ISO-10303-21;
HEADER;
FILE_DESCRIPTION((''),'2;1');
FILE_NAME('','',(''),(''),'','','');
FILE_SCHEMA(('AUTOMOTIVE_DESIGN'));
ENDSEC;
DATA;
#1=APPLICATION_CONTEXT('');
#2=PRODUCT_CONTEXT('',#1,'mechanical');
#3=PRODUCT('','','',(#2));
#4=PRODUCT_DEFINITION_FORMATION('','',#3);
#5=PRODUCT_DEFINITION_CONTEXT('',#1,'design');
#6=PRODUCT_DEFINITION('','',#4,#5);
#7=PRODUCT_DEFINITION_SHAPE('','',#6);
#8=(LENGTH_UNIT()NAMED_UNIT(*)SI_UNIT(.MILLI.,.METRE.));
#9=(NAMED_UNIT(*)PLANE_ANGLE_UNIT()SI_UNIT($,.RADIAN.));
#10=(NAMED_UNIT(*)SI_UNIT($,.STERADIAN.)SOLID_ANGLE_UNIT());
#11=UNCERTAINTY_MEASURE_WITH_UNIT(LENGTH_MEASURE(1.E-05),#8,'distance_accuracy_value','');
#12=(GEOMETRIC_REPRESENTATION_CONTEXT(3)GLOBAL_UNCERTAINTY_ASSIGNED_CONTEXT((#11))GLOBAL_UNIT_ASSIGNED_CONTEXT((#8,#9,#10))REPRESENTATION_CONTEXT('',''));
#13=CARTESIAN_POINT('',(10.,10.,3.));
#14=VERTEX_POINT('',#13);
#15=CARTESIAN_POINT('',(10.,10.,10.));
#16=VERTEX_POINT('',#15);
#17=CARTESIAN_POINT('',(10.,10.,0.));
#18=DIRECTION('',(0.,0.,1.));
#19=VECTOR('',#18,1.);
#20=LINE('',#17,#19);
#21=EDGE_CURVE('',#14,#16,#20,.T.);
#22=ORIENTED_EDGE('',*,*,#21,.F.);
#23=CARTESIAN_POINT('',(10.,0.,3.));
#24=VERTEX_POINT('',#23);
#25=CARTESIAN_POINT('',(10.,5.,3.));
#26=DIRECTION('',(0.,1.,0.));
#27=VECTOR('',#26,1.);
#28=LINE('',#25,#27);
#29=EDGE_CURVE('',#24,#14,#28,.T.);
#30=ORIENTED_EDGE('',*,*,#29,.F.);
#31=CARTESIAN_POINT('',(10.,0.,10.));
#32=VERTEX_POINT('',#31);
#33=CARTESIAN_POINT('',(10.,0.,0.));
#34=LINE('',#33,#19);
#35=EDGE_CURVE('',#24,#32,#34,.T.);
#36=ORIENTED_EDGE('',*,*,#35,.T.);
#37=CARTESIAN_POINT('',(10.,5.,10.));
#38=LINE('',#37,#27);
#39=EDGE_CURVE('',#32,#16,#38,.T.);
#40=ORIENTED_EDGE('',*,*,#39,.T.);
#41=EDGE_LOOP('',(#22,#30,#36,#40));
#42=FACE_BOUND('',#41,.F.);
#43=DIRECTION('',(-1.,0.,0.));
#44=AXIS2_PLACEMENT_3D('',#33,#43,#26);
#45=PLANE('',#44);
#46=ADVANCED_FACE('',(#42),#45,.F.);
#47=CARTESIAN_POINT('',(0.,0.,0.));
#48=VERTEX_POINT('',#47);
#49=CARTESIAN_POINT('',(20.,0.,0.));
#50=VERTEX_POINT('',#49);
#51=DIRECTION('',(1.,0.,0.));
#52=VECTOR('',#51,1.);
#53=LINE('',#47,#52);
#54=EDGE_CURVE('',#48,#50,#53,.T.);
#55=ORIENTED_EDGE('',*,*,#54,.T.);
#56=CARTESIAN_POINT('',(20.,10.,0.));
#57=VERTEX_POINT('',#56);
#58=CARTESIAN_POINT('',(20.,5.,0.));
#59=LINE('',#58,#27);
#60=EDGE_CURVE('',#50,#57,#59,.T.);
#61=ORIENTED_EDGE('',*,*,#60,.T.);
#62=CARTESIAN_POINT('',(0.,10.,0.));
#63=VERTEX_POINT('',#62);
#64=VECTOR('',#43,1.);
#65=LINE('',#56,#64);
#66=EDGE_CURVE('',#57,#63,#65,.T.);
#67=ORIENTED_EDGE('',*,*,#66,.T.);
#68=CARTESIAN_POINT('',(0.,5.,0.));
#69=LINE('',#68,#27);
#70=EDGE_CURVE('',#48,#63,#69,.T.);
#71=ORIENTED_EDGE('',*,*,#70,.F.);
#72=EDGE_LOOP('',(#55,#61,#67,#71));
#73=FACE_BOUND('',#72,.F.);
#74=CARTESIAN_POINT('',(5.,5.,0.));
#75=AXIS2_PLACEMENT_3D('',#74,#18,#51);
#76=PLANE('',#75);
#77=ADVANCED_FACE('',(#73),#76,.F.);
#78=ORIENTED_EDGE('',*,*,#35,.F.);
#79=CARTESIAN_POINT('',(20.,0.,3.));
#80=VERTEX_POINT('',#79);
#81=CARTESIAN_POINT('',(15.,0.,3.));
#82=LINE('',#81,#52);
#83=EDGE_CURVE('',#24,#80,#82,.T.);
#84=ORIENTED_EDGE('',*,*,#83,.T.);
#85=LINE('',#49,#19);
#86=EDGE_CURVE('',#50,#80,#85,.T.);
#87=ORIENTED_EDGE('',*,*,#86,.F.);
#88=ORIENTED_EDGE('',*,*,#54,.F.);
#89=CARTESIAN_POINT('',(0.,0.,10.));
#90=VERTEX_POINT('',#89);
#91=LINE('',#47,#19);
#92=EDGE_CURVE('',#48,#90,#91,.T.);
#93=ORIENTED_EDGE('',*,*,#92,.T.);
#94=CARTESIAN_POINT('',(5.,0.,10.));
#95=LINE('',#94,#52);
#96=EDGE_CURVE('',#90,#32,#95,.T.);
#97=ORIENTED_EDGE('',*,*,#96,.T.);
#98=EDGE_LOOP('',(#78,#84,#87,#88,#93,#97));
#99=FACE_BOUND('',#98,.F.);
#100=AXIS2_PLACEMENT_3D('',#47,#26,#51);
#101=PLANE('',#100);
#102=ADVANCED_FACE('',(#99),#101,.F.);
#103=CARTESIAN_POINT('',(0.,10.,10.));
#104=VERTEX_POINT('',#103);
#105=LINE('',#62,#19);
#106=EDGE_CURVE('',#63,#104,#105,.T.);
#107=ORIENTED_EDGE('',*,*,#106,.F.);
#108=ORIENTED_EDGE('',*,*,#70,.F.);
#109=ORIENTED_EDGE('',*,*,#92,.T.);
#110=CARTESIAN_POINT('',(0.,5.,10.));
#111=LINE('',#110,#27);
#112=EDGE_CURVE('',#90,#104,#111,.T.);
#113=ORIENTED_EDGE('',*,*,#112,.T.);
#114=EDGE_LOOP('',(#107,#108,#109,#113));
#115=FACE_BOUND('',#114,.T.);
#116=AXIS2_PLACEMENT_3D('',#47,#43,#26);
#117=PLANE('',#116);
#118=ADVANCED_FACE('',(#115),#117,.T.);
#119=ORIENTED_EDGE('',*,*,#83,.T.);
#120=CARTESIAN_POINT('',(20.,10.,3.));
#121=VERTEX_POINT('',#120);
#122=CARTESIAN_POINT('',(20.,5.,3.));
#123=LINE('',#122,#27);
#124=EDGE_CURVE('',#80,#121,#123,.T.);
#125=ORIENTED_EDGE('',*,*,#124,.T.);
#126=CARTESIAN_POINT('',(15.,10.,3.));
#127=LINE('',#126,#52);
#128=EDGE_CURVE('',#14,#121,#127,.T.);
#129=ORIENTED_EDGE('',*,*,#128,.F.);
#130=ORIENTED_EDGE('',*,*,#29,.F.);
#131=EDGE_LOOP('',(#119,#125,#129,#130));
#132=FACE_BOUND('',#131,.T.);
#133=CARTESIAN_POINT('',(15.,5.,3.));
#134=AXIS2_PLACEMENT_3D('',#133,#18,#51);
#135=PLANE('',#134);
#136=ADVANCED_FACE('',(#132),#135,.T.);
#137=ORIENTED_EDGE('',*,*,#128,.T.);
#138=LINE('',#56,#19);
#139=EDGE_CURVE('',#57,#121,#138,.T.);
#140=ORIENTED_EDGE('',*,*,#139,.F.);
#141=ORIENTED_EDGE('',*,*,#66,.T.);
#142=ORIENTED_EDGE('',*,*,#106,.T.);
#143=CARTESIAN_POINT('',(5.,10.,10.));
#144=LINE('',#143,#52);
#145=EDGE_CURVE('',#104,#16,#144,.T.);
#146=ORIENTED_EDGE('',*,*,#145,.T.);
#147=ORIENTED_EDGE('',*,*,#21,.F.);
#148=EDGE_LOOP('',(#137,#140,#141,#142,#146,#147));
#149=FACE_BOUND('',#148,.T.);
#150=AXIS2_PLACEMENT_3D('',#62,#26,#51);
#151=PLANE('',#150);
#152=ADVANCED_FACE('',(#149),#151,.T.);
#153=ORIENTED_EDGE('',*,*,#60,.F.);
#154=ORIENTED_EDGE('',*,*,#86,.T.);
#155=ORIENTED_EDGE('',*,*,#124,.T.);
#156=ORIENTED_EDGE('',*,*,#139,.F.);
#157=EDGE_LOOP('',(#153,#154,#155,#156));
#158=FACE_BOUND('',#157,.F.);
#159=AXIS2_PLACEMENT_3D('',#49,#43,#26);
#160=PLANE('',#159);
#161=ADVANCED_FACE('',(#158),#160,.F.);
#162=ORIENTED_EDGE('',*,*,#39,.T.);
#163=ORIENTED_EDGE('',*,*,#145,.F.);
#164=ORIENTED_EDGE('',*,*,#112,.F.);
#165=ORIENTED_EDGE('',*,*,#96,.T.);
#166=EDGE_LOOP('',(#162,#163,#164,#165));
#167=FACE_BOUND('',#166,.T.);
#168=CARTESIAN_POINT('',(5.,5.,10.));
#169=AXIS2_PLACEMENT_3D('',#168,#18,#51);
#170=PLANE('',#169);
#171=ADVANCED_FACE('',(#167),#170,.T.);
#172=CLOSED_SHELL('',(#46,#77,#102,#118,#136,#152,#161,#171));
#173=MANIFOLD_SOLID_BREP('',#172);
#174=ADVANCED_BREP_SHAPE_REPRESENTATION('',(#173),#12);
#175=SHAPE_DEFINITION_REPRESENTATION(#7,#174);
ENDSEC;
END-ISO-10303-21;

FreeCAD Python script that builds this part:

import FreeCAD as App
import Part
import Sketcher

V = App.Vector
Q = App.Units.Quantity

doc = App.newDocument("Part")
body = doc.addObject("PartDesign::Body", "Body")

# Sketch on XY plane
sketch1 = doc.addObject("Sketcher::SketchObject", "Sketch")
body.addObject(sketch1)
sketch1.AttachmentSupport = (doc.XY_Plane, [""])
sketch1.MapMode = "FlatFace"
sketch1.addGeometry([
    Part.LineSegment(V(0, 10, 0), V(0, 0, 0)),
    Part.LineSegment(V(0, 0, 0), V(10, 0, 0)),
    Part.LineSegment(V(10, 0, 0), V(10, 10, 0)),
    Part.LineSegment(V(10, 10, 0), V(0, 10, 0)),
], False)
sketch1.addConstraint([
    Sketcher.Constraint("Coincident", 0, 2, 1, 1),
    Sketcher.Constraint("Coincident", 1, 2, 2, 1),
    Sketcher.Constraint("Coincident", 2, 2, 3, 1),
    Sketcher.Constraint("Coincident", 3, 2, 0, 1),
    Sketcher.Constraint("Vertical", 0),
    Sketcher.Constraint("Horizontal", 1),
    Sketcher.Constraint("Vertical", 2),
    Sketcher.Constraint("Horizontal", 3),
    Sketcher.Constraint("Coincident", 0, 2, -1, 1),
    Sketcher.Constraint("Equal", 3, 0),
    Sketcher.Constraint("DistanceX", 1, 1, 1, 2, Q("10 mm")),
])
pad1 = doc.addObject("PartDesign::Pad", "Pad")
body.addObject(pad1)
pad1.Profile = sketch1
pad1.Length = 10
body2 = doc.addObject("PartDesign::Body", "Body001")

# Sketch on XY plane
sketch2 = doc.addObject("Sketcher::SketchObject", "Sketch001")
body2.addObject(sketch2)
sketch2.AttachmentSupport = (doc.getObject("XY_Plane001"), [""])
sketch2.MapMode = "FlatFace"
sketch2.addGeometry([
    Part.LineSegment(V(10, 10, 0), V(10, 0, 0)),
    Part.LineSegment(V(10, 0, 0), V(20, 0, 0)),
    Part.LineSegment(V(20, 0, 0), V(20, 10, 0)),
    Part.LineSegment(V(20, 10, 0), V(10, 10, 0)),
], False)
sketch2.addConstraint([
    Sketcher.Constraint("Coincident", 0, 2, 1, 1),
    Sketcher.Constraint("Coincident", 1, 2, 2, 1),
    Sketcher.Constraint("Coincident", 2, 2, 3, 1),
    Sketcher.Constraint("Coincident", 3, 2, 0, 1),
    Sketcher.Constraint("Vertical", 0),
    Sketcher.Constraint("Horizontal", 1),
    Sketcher.Constraint("Vertical", 2),
    Sketcher.Constraint("Horizontal", 3),
    Sketcher.Constraint("PointOnObject", 0, 2, -1),
    Sketcher.Constraint("Equal", 3, 0),
    Sketcher.Constraint("DistanceX", 1, 1, 1, 2, Q("10 mm")),
    Sketcher.Constraint("DistanceX", -1, 1, 0, 2, Q("10 mm")),
])
pad2 = doc.addObject("PartDesign::Pad", "Pad001")
body2.addObject(pad2)
pad2.Profile = sketch2
pad2.Length = 3
doc.recompute()

boolean = doc.addObject("PartDesign::Boolean", "Boolean")
body2.addObject(boolean)
boolean.Type = "Fuse"
boolean.addObjects([body])

doc.recompute()
